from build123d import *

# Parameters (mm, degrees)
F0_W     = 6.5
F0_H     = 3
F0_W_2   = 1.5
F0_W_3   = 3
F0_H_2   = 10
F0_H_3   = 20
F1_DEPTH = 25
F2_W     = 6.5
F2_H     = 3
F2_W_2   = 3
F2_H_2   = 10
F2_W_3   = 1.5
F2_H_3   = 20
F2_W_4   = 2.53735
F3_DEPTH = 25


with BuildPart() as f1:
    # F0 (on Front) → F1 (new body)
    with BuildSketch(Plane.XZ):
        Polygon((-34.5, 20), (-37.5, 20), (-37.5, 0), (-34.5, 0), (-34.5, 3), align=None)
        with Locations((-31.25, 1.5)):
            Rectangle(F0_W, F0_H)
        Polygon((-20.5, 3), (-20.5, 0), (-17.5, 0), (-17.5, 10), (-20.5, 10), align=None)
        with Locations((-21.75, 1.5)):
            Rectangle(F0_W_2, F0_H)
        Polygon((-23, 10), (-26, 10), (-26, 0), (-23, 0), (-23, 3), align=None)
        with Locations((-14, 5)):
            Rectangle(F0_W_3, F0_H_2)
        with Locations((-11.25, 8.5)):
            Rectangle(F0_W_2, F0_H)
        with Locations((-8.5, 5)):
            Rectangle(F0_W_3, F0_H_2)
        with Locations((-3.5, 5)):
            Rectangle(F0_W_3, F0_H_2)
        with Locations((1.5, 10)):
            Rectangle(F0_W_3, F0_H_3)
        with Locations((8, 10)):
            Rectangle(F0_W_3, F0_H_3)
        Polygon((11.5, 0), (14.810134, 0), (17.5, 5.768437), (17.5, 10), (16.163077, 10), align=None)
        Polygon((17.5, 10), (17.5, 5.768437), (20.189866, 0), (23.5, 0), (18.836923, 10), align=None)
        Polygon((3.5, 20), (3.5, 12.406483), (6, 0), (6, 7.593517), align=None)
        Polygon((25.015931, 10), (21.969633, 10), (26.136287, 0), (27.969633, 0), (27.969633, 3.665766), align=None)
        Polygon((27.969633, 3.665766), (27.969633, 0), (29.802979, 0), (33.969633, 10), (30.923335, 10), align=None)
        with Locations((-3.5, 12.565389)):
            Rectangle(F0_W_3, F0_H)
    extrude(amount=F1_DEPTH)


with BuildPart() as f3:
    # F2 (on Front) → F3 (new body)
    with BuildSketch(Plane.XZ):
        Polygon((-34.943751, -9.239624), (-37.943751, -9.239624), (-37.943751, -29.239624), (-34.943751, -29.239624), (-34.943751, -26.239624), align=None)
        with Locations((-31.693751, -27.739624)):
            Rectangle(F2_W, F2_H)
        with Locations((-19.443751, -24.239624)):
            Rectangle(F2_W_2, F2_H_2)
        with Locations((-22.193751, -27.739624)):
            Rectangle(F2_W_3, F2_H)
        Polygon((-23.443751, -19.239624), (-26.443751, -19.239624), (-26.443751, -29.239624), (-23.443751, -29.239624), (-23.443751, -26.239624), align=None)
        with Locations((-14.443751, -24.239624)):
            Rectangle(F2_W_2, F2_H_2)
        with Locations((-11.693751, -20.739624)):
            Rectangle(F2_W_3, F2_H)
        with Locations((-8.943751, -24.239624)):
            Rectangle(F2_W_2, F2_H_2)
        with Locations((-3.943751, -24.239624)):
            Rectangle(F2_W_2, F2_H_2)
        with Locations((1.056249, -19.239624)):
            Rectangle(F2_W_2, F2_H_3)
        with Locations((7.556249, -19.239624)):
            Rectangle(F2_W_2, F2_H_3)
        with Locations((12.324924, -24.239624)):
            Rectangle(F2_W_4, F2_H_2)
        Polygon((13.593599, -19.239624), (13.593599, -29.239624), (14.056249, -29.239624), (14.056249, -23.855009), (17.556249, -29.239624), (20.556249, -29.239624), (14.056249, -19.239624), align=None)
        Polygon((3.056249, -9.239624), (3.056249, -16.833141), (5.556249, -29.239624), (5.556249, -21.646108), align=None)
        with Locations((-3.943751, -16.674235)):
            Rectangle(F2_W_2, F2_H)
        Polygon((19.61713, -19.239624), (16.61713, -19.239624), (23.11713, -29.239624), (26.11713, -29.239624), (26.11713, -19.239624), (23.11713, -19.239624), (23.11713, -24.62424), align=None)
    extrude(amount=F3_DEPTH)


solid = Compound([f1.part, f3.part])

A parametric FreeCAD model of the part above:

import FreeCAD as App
import Part
import Sketcher
Q = App.Units.Quantity


def add_polygon(sketch, points):
    """Adds a closed chain of lines whose ends are joined by coincident constraints."""
    first, n = sketch.GeometryCount, len(points)
    for a, b in zip(points, points[1:] + points[:1]):
        sketch.addGeometry(Part.LineSegment(App.Vector(*a, 0), App.Vector(*b, 0)), False)
    for i in range(n):
        sketch.addConstraint(Sketcher.Constraint("Coincident", first + i, 2, first + (i + 1) % n, 1))

doc = App.newDocument("Part")
params = doc.addObject("Spreadsheet::Sheet", "Params")
for row, (alias, value) in enumerate([
    ("sketch1_width", "3 mm"),
    ("sketch1_height", "20 mm"),
    ("sketch1_height2", "10 mm"),
    ("sketch1_width2", "9.5 mm"),
    ("sketch1_width3", "1.5 mm"),
    ("pad1_length", "25 mm"),
    ("sketch2_width", "3 mm"),
    ("sketch2_height", "20 mm"),
    ("sketch2_height2", "10 mm"),
    ("sketch2_width2", "9.5 mm"),
    ("sketch2_width3", "1.5 mm"),
    ("pad2_length", "25 mm"),
], start=1):
    params.set(f"A{row}", alias)
    params.set(f"B{row}", "=" + value)
    params.setAlias(f"B{row}", alias)

body = doc.addObject("PartDesign::Body", "Body")
body.AllowCompound = True

sketch1 = body.newObject("Sketcher::SketchObject", "Sketch")
sketch1.AttachmentSupport = (doc.getObject("XZ_Plane"), [""])
sketch1.MapMode = "FlatFace"
add_polygon(sketch1, [(-34.5, 20), (-37.5, 20), (-37.5, 0), (-28, 0), (-28, 3), (-34.5, 3)])
add_polygon(sketch1, [(-20.5, 0), (-17.5, 0), (-17.5, 10), (-20.5, 10)])
add_polygon(sketch1, [(-22.5, 3), (-22.5, 0), (-21, 0), (-21, 3)])
add_polygon(sketch1, [(-23, 10), (-26, 10), (-26, 0), (-23, 0)])
add_polygon(sketch1, [(-15.5, 10), (-15.5, 0), (-12.5, 0), (-12.5, 10)])
add_polygon(sketch1, [(-12, 10), (-12, 7), (-10.5, 7), (-10.5, 10)])
add_polygon(sketch1, [(-10, 10), (-10, 0), (-7, 0), (-7, 10)])
add_polygon(sketch1, [(-5, 10), (-5, 0), (-2, 0), (-2, 10)])
add_polygon(sketch1, [(0, 20), (0, 0), (3, 0), (3, 20)])
add_polygon(sketch1, [(6.5, 20), (6.5, 0), (9.5, 0), (9.5, 20)])
add_polygon(sketch1, [(11.5, 0), (14.8, 0), (17.5, 5.8), (20.2, 0), (23.5, 0), (18.8, 10), (16.2, 10)])
add_polygon(sketch1, [(3.5, 20), (3.5, 12.4), (6, 0), (6, 7.6)])
add_polygon(sketch1, [(25, 10), (22, 10), (26.1, 0), (29.8, 0), (34, 10), (30.9, 10), (28, 3.7)])
add_polygon(sketch1, [(-5, 14.1), (-5, 11.1), (-2, 11.1), (-2, 14.1)])
sketch1.addConstraint([
    Sketcher.Constraint("Horizontal", 0),
    Sketcher.Constraint("Vertical", 1),
    Sketcher.Constraint("Horizontal", 2),
    Sketcher.Constraint("Vertical", 3),
    Sketcher.Constraint("Horizontal", 4),
    Sketcher.Constraint("Vertical", 5),
    Sketcher.Constraint("Horizontal", 6),
    Sketcher.Constraint("Vertical", 7),
    Sketcher.Constraint("Horizontal", 8),
    Sketcher.Constraint("Vertical", 9),
    Sketcher.Constraint("Vertical", 10),
    Sketcher.Constraint("Horizontal", 11),
    Sketcher.Constraint("Vertical", 12),
    Sketcher.Constraint("Horizontal", 13),
    Sketcher.Constraint("Horizontal", 14),
    Sketcher.Constraint("Vertical", 15),
    Sketcher.Constraint("Horizontal", 16),
    Sketcher.Constraint("Vertical", 17),
    Sketcher.Constraint("Vertical", 18),
    Sketcher.Constraint("Horizontal", 19),
    Sketcher.Constraint("Vertical", 20),
    Sketcher.Constraint("Horizontal", 21),
    Sketcher.Constraint("Vertical", 22),
    Sketcher.Constraint("Horizontal", 23),
    Sketcher.Constraint("Vertical", 24),
    Sketcher.Constraint("Horizontal", 25),
    Sketcher.Constraint("Vertical", 26),
    Sketcher.Constraint("Horizontal", 27),
    Sketcher.Constraint("Vertical", 28),
    Sketcher.Constraint("Horizontal", 29),
    Sketcher.Constraint("Vertical", 30),
    Sketcher.Constraint("Horizontal", 31),
    Sketcher.Constraint("Vertical", 32),
    Sketcher.Constraint("Horizontal", 33),
    Sketcher.Constraint("Vertical", 34),
    Sketcher.Constraint("Horizontal", 35),
    Sketcher.Constraint("Vertical", 36),
    Sketcher.Constraint("Horizontal", 37),
    Sketcher.Constraint("Vertical", 38),
    Sketcher.Constraint("Horizontal", 39),
    Sketcher.Constraint("Vertical", 40),
    Sketcher.Constraint("Horizontal", 41),
    Sketcher.Constraint("Horizontal", 42),
    Sketcher.Constraint("Horizontal", 45),
    Sketcher.Constraint("Horizontal", 47),
    Sketcher.Constraint("Vertical", 49),
    Sketcher.Constraint("Vertical", 51),
    Sketcher.Constraint("Horizontal", 53),
    Sketcher.Constraint("Horizontal", 55),
    Sketcher.Constraint("Horizontal", 57),
    Sketcher.Constraint("Vertical", 60),
    Sketcher.Constraint("Horizontal", 61),
    Sketcher.Constraint("Vertical", 62),
    Sketcher.Constraint("Horizontal", 63),
    Sketcher.Constraint("Coincident", 34, 2, -1, 1),
    Sketcher.Constraint("PointOnObject", 1, 2, -1),
    Sketcher.Constraint("PointOnObject", 6, 2, -1),
    Sketcher.Constraint("PointOnObject", 10, 2, -1),
    Sketcher.Constraint("PointOnObject", 15, 2, -1),
    Sketcher.Constraint("PointOnObject", 18, 2, -1),
    Sketcher.Constraint("PointOnObject", 26, 2, -1),
    Sketcher.Constraint("PointOnObject", 30, 2, -1),
    Sketcher.Constraint("PointOnObject", 38, 2, -1),
    Sketcher.Constraint("PointOnObject", 42, 2, -1),
    Sketcher.Constraint("PointOnObject", 44, 2, -1),
    Sketcher.Constraint("PointOnObject", 50, 2, -1),
    Sketcher.Constraint("PointOnObject", 54, 2, -1),
    Sketcher.Constraint("Parallel", 44, 46),
    Sketcher.Constraint("Parallel", 43, 48),
    Sketcher.Constraint("Parallel", 50, 52),
    Sketcher.Constraint("Parallel", 48, 58),
    Sketcher.Constraint("Parallel", 46, 59),
    Sketcher.Constraint("Horizontal", 4, 2, 12, 2),
    Sketcher.Constraint("Horizontal", 8, 2, 14, 2),
    Sketcher.Constraint("Horizontal", 17, 2, 20, 2),
    Sketcher.Constraint("Horizontal", 21, 2, 24, 2),
    Sketcher.Constraint("Horizontal", 25, 2, 28, 2),
    Sketcher.Constraint("Horizontal", 29, 2, 32, 2),
    Sketcher.Constraint("Horizontal", 5, 2, 36, 2),
    Sketcher.Constraint("Horizontal", 37, 2, 40, 2),
    Sketcher.Constraint("Horizontal", 33, 2, 46, 2),
    Sketcher.Constraint("Horizontal", 41, 2, 52, 2),
    Sketcher.Constraint("Horizontal", 47, 2, 53, 2),
    Sketcher.Constraint("Horizontal", 53, 2, 56, 2),
    Sketcher.Constraint("Vertical", 33, 2, 60, 2),
    Sketcher.Constraint("Vertical", 32, 2, 61, 2),
    Sketcher.Constraint("Equal", 0, 6),
    Sketcher.Constraint("Equal", 8, 14),
    Sketcher.Constraint("Equal", 16, 19),
    Sketcher.Constraint("Equal", 13, 23),
    Sketcher.Constraint("Equal", 21, 27),
    Sketcher.Constraint("Equal", 29, 31),
    Sketcher.Constraint("Equal", 33, 35),
    Sketcher.Constraint("Equal", 37, 39),
    Sketcher.Constraint("Equal", 42, 45),
    Sketcher.Constraint("Equal", 53, 57),
    Sketcher.Constraint("Equal", 63, 3),
    Sketcher.Constraint("Equal", 12, 22),
    Sketcher.Constraint("Equal", 24, 60),
    Sketcher.Constraint("Equal", 43, 44),
    Sketcher.Constraint("Equal", 54, 56),
    Sketcher.Constraint("DistanceX", 0, 2, 0, 1, 3.0),
    Sketcher.Constraint("DistanceY", 1, 2, 1, 1, 20.0),
    Sketcher.Constraint("DistanceY", 7, 1, 7, 2, 10.0),
    Sketcher.Constraint("Angle", 43, Q("65.000003 deg")),
    Sketcher.Constraint("DistanceX", 2, 1, 2, 2, 9.5),
    Sketcher.Constraint("DistanceX", 11, 1, 11, 2, 1.5),
    Sketcher.Constraint("DistanceX", 2, 2, -1, 1, 28.0),
    Sketcher.Constraint("DistanceX", 11, 2, -1, 1, 21.0),
    Sketcher.Constraint("DistanceX", 14, 2, -1, 1, 26.0),
    Sketcher.Constraint("DistanceX", 22, 2, -1, 1, 12.0),
    Sketcher.Constraint("DistanceX", 26, 2, -1, 1, 10.0),
    Sketcher.Constraint("DistanceX", 30, 2, -1, 1, 5.0),
    Sketcher.Constraint("DistanceX", -1, 1, 50, 2, 6.0),
    Sketcher.Constraint("DistanceX", 6, 2, -1, 1, 17.5),
    Sketcher.Constraint("DistanceX", 18, 2, -1, 1, 15.5),
    Sketcher.Constraint("DistanceX", -1, 1, 38, 2, 6.5),
    Sketcher.Constraint("DistanceX", -1, 1, 43, 2, 17.5),
    Sketcher.Constraint("DistanceX", -1, 1, 45, 2, 23.5),
    Sketcher.Constraint("DistanceX", -1, 1, 49, 2, 3.5),
    Sketcher.Constraint("DistanceX", 57, 2, 57, 1, 3.046298),
    Sketcher.Constraint("Distance", 50, 12.655861),
    Sketcher.Constraint("Distance", 54, 10.833328),
    Sketcher.Constraint("DistanceX", 42, 1, 42, 2, 3.310134),
    Sketcher.Constraint("DistanceX", 55, 1, 55, 2, 3.666692),
    Sketcher.Constraint("DistanceX", -1, 1, 55, 2, 29.802979),
    Sketcher.Constraint("DistanceY", -1, 1, 60, 2, 11.065389),
])
sketch1.setExpression("Constraints[165]", "Params.sketch1_width")
sketch1.setExpression("Constraints[166]", "Params.sketch1_height")
sketch1.setExpression("Constraints[167]", "Params.sketch1_height2")
sketch1.setExpression("Constraints[169]", "Params.sketch1_width2")
sketch1.setExpression("Constraints[170]", "Params.sketch1_width3")
pad1 = body.newObject("PartDesign::Pad", "Pad")
pad1.Profile = sketch1
pad1.setExpression("Length", "Params.pad1_length")
body2 = doc.addObject("PartDesign::Body", "Body001")
body2.AllowCompound = True

sketch2 = body2.newObject("Sketcher::SketchObject", "Sketch001")
sketch2.AttachmentSupport = (doc.getObject("XZ_Plane001"), [""])
sketch2.MapMode = "FlatFace"
add_polygon(sketch2, [(-34.9, -9.2), (-37.9, -9.2), (-37.9, -29.2), (-28.4, -29.2), (-28.4, -26.2), (-34.9, -26.2)])
add_polygon(sketch2, [(-20.9, -19.2), (-20.9, -29.2), (-17.9, -29.2), (-17.9, -19.2)])
add_polygon(sketch2, [(-22.9, -26.2), (-22.9, -29.2), (-21.4, -29.2), (-21.4, -26.2)])
add_polygon(sketch2, [(-23.4, -19.2), (-26.4, -19.2), (-26.4, -29.2), (-23.4, -29.2)])
add_polygon(sketch2, [(-15.9, -19.2), (-15.9, -29.2), (-12.9, -29.2), (-12.9, -19.2)])
add_polygon(sketch2, [(-12.4, -19.2), (-12.4, -22.2), (-10.9, -22.2), (-10.9, -19.2)])
add_polygon(sketch2, [(-10.4, -19.2), (-10.4, -29.2), (-7.4, -29.2), (-7.4, -19.2)])
add_polygon(sketch2, [(-5.4, -19.2), (-5.4, -29.2), (-2.4, -29.2), (-2.4, -19.2)])
add_polygon(sketch2, [(-0.4, -9.2), (-0.4, -29.2), (2.6, -29.2), (2.6, -9.2)])
add_polygon(sketch2, [(6.1, -9.2), (6.1, -29.2), (9.1, -29.2), (9.1, -9.2)])
add_polygon(sketch2, [(11.1, -19.2), (11.1, -29.2), (14.1, -29.2), (14.1, -23.9), (17.6, -29.2), (20.6, -29.2), (14.1, -19.2)])
add_polygon(sketch2, [(3.1, -9.2), (3.1, -16.8), (5.6, -29.2), (5.6, -21.6)])
add_polygon(sketch2, [(-5.4, -15.2), (-5.4, -18.2), (-2.4, -18.2), (-2.4, -15.2)])
add_polygon(sketch2, [(19.6, -19.2), (16.6, -19.2), (23.1, -29.2), (26.1, -29.2), (26.1, -19.2), (23.1, -19.2), (23.1, -24.6)])
sketch2.addConstraint([
    Sketcher.Constraint("Horizontal", 0),
    Sketcher.Constraint("Vertical", 1),
    Sketcher.Constraint("Horizontal", 2),
    Sketcher.Constraint("Vertical", 3),
    Sketcher.Constraint("Horizontal", 4),
    Sketcher.Constraint("Vertical", 5),
    Sketcher.Constraint("Vertical", 6),
    Sketcher.Constraint("Horizontal", 7),
    Sketcher.Constraint("Vertical", 8),
    Sketcher.Constraint("Horizontal", 9),
    Sketcher.Constraint("Vertical", 10),
    Sketcher.Constraint("Horizontal", 11),
    Sketcher.Constraint("Vertical", 12),
    Sketcher.Constraint("Horizontal", 13),
    Sketcher.Constraint("Horizontal", 14),
    Sketcher.Constraint("Vertical", 15),
    Sketcher.Constraint("Horizontal", 16),
    Sketcher.Constraint("Vertical", 17),
    Sketcher.Constraint("Vertical", 18),
    Sketcher.Constraint("Horizontal", 19),
    Sketcher.Constraint("Vertical", 20),
    Sketcher.Constraint("Horizontal", 21),
    Sketcher.Constraint("Vertical", 22),
    Sketcher.Constraint("Horizontal", 23),
    Sketcher.Constraint("Vertical", 24),
    Sketcher.Constraint("Horizontal", 25),
    Sketcher.Constraint("Vertical", 26),
    Sketcher.Constraint("Horizontal", 27),
    Sketcher.Constraint("Vertical", 28),
    Sketcher.Constraint("Horizontal", 29),
    Sketcher.Constraint("Vertical", 30),
    Sketcher.Constraint("Horizontal", 31),
    Sketcher.Constraint("Vertical", 32),
    Sketcher.Constraint("Horizontal", 33),
    Sketcher.Constraint("Vertical", 34),
    Sketcher.Constraint("Horizontal", 35),
    Sketcher.Constraint("Vertical", 36),
    Sketcher.Constraint("Horizontal", 37),
    Sketcher.Constraint("Vertical", 38),
    Sketcher.Constraint("Horizontal", 39),
    Sketcher.Constraint("Vertical", 40),
    Sketcher.Constraint("Horizontal", 41),
    Sketcher.Constraint("Vertical", 42),
    Sketcher.Constraint("Horizontal", 43),
    Sketcher.Constraint("Vertical", 44),
    Sketcher.Constraint("Horizontal", 46),
    Sketcher.Constraint("Horizontal", 48),
    Sketcher.Constraint("Vertical", 49),
    Sketcher.Constraint("Vertical", 51),
    Sketcher.Constraint("Vertical", 53),
    Sketcher.Constraint("Horizontal", 54),
    Sketcher.Constraint("Vertical", 55),
    Sketcher.Constraint("Horizontal", 56),
    Sketcher.Constraint("Horizontal", 57),
    Sketcher.Constraint("Horizontal", 59),
    Sketcher.Constraint("Vertical", 60),
    Sketcher.Constraint("Horizontal", 61),
    Sketcher.Constraint("Vertical", 62),
    Sketcher.Constraint("Parallel", 45, 47),
    Sketcher.Constraint("Parallel", 50, 52),
    Sketcher.Constraint("Parallel", 47, 58),
    Sketcher.Constraint("Parallel", 58, 63),
    Sketcher.Constraint("Horizontal", 2, 2, 6, 2),
    Sketcher.Constraint("Horizontal", 7, 2, 10, 2),
    Sketcher.Constraint("Horizontal", 4, 2, 12, 2),
    Sketcher.Constraint("Horizontal", 9, 2, 14, 2),
    Sketcher.Constraint("Horizontal", 11, 2, 15, 2),
    Sketcher.Constraint("Horizontal", 16, 2, 18, 2),
    Sketcher.Constraint("Horizontal", 17, 2, 20, 2),
    Sketcher.Constraint("Horizontal", 21, 2, 24, 2),
    Sketcher.Constraint("Horizontal", 19, 2, 26, 2),
    Sketcher.Constraint("Horizontal", 25, 2, 28, 2),
    Sketcher.Constraint("Horizontal", 27, 2, 30, 2),
    Sketcher.Constraint("Horizontal", 29, 2, 32, 2),
    Sketcher.Constraint("Horizontal", 31, 2, 34, 2),
    Sketcher.Constraint("Horizontal", 5, 2, 36, 2),
    Sketcher.Constraint("Horizontal", 35, 2, 38, 2),
    Sketcher.Constraint("Horizontal", 37, 2, 40, 2),
    Sketcher.Constraint("Horizontal", 39, 2, 42, 2),
    Sketcher.Constraint("Horizontal", 43, 2, 45, 2),
    Sketcher.Constraint("Horizontal", 33, 2, 47, 2),
    Sketcher.Constraint("Horizontal", 46, 2, 50, 2),
    Sketcher.Constraint("Horizontal", 41, 2, 52, 2),
    Sketcher.Constraint("Horizontal", 48, 2, 57, 2),
    Sketcher.Constraint("Horizontal", 50, 2, 58, 2),
    Sketcher.Constraint("Horizontal", 57, 2, 60, 2),
    Sketcher.Constraint("Vertical", 44, 2, 47, 2),
    Sketcher.Constraint("Vertical", 33, 2, 53, 2),
    Sketcher.Constraint("Vertical", 32, 2, 54, 2),
    Sketcher.Constraint("Vertical", 58, 2, 61, 2),
    Sketcher.Constraint("Equal", 0, 7),
    Sketcher.Constraint("Equal", 9, 14),
    Sketcher.Constraint("Equal", 16, 19),
    Sketcher.Constraint("Equal", 13, 23),
    Sketcher.Constraint("Equal", 21, 27),
    Sketcher.Constraint("Equal", 29, 31),
    Sketcher.Constraint("Equal", 33, 35),
    Sketcher.Constraint("Equal", 37, 39),
    Sketcher.Constraint("Equal", 41, 43),
    Sketcher.Constraint("Equal", 43, 46),
    Sketcher.Constraint("Equal", 56, 57),
    Sketcher.Constraint("Equal", 57, 59),
    Sketcher.Constraint("Equal", 61, 3),
    Sketcher.Constraint("Equal", 12, 22),
    Sketcher.Constraint("Equal", 24, 53),
    Sketcher.Constraint("DistanceX", 0, 2, 0, 1, 3.0),
    Sketcher.Constraint("DistanceY", 1, 2, 1, 1, 20.0),
    Sketcher.Constraint("DistanceY", 6, 2, 6, 1, 10.0),
    Sketcher.Constraint("DistanceX", 2, 1, 2, 2, 9.5),
    Sketcher.Constraint("DistanceX", 11, 1, 11, 2, 1.5),
    Sketcher.Constraint("Distance", 47, 11.92686),
    Sketcher.Constraint("Distance", 50, 12.655861),
    Sketcher.Constraint("DistanceY", 49, 2, 49, 1, 7.593517),
    Sketcher.Constraint("DistanceX", 0, 2, -1, 1, 37.943751),
    Sketcher.Constraint("DistanceX", 6, 2, -1, 1, 20.943751),
    Sketcher.Constraint("DistanceX", 10, 2, -1, 1, 22.943751),
    Sketcher.Constraint("DistanceX", 14, 2, -1, 1, 26.443751),
    Sketcher.Constraint("DistanceX", 18, 2, -1, 1, 15.943751),
    Sketcher.Constraint("DistanceX", 22, 2, -1, 1, 12.443751),
    Sketcher.Constraint("DistanceX", 26, 2, -1, 1, 10.443751),
    Sketcher.Constraint("DistanceX", 30, 2, -1, 1, 5.443751),
    Sketcher.Constraint("DistanceX", 34, 2, -1, 1, 0.443751),
    Sketcher.Constraint("DistanceX", -1, 1, 38, 2, 6.056249),
    Sketcher.Constraint("DistanceX", -1, 1, 42, 2, 11.056249),
    Sketcher.Constraint("DistanceY", 44, 2, -1, 1, 23.855009),
    Sketcher.Constraint("DistanceX", -1, 1, 49, 2, 3.056249),
    Sketcher.Constraint("DistanceX", -1, 1, 57, 2, 16.61713),
    Sketcher.Constraint("DistanceY", 53, 2, -1, 1, 18.174235),
])
sketch2.setExpression("Constraints[169]", "Params.sketch2_width")
sketch2.setExpression("Constraints[170]", "Params.sketch2_height")
sketch2.setExpression("Constraints[171]", "Params.sketch2_height2")
sketch2.setExpression("Constraints[172]", "Params.sketch2_width2")
sketch2.setExpression("Constraints[173]", "Params.sketch2_width3")
pad2 = body2.newObject("PartDesign::Pad", "Pad001")
pad2.Profile = sketch2
pad2.setExpression("Length", "Params.pad2_length")

doc.recompute()
